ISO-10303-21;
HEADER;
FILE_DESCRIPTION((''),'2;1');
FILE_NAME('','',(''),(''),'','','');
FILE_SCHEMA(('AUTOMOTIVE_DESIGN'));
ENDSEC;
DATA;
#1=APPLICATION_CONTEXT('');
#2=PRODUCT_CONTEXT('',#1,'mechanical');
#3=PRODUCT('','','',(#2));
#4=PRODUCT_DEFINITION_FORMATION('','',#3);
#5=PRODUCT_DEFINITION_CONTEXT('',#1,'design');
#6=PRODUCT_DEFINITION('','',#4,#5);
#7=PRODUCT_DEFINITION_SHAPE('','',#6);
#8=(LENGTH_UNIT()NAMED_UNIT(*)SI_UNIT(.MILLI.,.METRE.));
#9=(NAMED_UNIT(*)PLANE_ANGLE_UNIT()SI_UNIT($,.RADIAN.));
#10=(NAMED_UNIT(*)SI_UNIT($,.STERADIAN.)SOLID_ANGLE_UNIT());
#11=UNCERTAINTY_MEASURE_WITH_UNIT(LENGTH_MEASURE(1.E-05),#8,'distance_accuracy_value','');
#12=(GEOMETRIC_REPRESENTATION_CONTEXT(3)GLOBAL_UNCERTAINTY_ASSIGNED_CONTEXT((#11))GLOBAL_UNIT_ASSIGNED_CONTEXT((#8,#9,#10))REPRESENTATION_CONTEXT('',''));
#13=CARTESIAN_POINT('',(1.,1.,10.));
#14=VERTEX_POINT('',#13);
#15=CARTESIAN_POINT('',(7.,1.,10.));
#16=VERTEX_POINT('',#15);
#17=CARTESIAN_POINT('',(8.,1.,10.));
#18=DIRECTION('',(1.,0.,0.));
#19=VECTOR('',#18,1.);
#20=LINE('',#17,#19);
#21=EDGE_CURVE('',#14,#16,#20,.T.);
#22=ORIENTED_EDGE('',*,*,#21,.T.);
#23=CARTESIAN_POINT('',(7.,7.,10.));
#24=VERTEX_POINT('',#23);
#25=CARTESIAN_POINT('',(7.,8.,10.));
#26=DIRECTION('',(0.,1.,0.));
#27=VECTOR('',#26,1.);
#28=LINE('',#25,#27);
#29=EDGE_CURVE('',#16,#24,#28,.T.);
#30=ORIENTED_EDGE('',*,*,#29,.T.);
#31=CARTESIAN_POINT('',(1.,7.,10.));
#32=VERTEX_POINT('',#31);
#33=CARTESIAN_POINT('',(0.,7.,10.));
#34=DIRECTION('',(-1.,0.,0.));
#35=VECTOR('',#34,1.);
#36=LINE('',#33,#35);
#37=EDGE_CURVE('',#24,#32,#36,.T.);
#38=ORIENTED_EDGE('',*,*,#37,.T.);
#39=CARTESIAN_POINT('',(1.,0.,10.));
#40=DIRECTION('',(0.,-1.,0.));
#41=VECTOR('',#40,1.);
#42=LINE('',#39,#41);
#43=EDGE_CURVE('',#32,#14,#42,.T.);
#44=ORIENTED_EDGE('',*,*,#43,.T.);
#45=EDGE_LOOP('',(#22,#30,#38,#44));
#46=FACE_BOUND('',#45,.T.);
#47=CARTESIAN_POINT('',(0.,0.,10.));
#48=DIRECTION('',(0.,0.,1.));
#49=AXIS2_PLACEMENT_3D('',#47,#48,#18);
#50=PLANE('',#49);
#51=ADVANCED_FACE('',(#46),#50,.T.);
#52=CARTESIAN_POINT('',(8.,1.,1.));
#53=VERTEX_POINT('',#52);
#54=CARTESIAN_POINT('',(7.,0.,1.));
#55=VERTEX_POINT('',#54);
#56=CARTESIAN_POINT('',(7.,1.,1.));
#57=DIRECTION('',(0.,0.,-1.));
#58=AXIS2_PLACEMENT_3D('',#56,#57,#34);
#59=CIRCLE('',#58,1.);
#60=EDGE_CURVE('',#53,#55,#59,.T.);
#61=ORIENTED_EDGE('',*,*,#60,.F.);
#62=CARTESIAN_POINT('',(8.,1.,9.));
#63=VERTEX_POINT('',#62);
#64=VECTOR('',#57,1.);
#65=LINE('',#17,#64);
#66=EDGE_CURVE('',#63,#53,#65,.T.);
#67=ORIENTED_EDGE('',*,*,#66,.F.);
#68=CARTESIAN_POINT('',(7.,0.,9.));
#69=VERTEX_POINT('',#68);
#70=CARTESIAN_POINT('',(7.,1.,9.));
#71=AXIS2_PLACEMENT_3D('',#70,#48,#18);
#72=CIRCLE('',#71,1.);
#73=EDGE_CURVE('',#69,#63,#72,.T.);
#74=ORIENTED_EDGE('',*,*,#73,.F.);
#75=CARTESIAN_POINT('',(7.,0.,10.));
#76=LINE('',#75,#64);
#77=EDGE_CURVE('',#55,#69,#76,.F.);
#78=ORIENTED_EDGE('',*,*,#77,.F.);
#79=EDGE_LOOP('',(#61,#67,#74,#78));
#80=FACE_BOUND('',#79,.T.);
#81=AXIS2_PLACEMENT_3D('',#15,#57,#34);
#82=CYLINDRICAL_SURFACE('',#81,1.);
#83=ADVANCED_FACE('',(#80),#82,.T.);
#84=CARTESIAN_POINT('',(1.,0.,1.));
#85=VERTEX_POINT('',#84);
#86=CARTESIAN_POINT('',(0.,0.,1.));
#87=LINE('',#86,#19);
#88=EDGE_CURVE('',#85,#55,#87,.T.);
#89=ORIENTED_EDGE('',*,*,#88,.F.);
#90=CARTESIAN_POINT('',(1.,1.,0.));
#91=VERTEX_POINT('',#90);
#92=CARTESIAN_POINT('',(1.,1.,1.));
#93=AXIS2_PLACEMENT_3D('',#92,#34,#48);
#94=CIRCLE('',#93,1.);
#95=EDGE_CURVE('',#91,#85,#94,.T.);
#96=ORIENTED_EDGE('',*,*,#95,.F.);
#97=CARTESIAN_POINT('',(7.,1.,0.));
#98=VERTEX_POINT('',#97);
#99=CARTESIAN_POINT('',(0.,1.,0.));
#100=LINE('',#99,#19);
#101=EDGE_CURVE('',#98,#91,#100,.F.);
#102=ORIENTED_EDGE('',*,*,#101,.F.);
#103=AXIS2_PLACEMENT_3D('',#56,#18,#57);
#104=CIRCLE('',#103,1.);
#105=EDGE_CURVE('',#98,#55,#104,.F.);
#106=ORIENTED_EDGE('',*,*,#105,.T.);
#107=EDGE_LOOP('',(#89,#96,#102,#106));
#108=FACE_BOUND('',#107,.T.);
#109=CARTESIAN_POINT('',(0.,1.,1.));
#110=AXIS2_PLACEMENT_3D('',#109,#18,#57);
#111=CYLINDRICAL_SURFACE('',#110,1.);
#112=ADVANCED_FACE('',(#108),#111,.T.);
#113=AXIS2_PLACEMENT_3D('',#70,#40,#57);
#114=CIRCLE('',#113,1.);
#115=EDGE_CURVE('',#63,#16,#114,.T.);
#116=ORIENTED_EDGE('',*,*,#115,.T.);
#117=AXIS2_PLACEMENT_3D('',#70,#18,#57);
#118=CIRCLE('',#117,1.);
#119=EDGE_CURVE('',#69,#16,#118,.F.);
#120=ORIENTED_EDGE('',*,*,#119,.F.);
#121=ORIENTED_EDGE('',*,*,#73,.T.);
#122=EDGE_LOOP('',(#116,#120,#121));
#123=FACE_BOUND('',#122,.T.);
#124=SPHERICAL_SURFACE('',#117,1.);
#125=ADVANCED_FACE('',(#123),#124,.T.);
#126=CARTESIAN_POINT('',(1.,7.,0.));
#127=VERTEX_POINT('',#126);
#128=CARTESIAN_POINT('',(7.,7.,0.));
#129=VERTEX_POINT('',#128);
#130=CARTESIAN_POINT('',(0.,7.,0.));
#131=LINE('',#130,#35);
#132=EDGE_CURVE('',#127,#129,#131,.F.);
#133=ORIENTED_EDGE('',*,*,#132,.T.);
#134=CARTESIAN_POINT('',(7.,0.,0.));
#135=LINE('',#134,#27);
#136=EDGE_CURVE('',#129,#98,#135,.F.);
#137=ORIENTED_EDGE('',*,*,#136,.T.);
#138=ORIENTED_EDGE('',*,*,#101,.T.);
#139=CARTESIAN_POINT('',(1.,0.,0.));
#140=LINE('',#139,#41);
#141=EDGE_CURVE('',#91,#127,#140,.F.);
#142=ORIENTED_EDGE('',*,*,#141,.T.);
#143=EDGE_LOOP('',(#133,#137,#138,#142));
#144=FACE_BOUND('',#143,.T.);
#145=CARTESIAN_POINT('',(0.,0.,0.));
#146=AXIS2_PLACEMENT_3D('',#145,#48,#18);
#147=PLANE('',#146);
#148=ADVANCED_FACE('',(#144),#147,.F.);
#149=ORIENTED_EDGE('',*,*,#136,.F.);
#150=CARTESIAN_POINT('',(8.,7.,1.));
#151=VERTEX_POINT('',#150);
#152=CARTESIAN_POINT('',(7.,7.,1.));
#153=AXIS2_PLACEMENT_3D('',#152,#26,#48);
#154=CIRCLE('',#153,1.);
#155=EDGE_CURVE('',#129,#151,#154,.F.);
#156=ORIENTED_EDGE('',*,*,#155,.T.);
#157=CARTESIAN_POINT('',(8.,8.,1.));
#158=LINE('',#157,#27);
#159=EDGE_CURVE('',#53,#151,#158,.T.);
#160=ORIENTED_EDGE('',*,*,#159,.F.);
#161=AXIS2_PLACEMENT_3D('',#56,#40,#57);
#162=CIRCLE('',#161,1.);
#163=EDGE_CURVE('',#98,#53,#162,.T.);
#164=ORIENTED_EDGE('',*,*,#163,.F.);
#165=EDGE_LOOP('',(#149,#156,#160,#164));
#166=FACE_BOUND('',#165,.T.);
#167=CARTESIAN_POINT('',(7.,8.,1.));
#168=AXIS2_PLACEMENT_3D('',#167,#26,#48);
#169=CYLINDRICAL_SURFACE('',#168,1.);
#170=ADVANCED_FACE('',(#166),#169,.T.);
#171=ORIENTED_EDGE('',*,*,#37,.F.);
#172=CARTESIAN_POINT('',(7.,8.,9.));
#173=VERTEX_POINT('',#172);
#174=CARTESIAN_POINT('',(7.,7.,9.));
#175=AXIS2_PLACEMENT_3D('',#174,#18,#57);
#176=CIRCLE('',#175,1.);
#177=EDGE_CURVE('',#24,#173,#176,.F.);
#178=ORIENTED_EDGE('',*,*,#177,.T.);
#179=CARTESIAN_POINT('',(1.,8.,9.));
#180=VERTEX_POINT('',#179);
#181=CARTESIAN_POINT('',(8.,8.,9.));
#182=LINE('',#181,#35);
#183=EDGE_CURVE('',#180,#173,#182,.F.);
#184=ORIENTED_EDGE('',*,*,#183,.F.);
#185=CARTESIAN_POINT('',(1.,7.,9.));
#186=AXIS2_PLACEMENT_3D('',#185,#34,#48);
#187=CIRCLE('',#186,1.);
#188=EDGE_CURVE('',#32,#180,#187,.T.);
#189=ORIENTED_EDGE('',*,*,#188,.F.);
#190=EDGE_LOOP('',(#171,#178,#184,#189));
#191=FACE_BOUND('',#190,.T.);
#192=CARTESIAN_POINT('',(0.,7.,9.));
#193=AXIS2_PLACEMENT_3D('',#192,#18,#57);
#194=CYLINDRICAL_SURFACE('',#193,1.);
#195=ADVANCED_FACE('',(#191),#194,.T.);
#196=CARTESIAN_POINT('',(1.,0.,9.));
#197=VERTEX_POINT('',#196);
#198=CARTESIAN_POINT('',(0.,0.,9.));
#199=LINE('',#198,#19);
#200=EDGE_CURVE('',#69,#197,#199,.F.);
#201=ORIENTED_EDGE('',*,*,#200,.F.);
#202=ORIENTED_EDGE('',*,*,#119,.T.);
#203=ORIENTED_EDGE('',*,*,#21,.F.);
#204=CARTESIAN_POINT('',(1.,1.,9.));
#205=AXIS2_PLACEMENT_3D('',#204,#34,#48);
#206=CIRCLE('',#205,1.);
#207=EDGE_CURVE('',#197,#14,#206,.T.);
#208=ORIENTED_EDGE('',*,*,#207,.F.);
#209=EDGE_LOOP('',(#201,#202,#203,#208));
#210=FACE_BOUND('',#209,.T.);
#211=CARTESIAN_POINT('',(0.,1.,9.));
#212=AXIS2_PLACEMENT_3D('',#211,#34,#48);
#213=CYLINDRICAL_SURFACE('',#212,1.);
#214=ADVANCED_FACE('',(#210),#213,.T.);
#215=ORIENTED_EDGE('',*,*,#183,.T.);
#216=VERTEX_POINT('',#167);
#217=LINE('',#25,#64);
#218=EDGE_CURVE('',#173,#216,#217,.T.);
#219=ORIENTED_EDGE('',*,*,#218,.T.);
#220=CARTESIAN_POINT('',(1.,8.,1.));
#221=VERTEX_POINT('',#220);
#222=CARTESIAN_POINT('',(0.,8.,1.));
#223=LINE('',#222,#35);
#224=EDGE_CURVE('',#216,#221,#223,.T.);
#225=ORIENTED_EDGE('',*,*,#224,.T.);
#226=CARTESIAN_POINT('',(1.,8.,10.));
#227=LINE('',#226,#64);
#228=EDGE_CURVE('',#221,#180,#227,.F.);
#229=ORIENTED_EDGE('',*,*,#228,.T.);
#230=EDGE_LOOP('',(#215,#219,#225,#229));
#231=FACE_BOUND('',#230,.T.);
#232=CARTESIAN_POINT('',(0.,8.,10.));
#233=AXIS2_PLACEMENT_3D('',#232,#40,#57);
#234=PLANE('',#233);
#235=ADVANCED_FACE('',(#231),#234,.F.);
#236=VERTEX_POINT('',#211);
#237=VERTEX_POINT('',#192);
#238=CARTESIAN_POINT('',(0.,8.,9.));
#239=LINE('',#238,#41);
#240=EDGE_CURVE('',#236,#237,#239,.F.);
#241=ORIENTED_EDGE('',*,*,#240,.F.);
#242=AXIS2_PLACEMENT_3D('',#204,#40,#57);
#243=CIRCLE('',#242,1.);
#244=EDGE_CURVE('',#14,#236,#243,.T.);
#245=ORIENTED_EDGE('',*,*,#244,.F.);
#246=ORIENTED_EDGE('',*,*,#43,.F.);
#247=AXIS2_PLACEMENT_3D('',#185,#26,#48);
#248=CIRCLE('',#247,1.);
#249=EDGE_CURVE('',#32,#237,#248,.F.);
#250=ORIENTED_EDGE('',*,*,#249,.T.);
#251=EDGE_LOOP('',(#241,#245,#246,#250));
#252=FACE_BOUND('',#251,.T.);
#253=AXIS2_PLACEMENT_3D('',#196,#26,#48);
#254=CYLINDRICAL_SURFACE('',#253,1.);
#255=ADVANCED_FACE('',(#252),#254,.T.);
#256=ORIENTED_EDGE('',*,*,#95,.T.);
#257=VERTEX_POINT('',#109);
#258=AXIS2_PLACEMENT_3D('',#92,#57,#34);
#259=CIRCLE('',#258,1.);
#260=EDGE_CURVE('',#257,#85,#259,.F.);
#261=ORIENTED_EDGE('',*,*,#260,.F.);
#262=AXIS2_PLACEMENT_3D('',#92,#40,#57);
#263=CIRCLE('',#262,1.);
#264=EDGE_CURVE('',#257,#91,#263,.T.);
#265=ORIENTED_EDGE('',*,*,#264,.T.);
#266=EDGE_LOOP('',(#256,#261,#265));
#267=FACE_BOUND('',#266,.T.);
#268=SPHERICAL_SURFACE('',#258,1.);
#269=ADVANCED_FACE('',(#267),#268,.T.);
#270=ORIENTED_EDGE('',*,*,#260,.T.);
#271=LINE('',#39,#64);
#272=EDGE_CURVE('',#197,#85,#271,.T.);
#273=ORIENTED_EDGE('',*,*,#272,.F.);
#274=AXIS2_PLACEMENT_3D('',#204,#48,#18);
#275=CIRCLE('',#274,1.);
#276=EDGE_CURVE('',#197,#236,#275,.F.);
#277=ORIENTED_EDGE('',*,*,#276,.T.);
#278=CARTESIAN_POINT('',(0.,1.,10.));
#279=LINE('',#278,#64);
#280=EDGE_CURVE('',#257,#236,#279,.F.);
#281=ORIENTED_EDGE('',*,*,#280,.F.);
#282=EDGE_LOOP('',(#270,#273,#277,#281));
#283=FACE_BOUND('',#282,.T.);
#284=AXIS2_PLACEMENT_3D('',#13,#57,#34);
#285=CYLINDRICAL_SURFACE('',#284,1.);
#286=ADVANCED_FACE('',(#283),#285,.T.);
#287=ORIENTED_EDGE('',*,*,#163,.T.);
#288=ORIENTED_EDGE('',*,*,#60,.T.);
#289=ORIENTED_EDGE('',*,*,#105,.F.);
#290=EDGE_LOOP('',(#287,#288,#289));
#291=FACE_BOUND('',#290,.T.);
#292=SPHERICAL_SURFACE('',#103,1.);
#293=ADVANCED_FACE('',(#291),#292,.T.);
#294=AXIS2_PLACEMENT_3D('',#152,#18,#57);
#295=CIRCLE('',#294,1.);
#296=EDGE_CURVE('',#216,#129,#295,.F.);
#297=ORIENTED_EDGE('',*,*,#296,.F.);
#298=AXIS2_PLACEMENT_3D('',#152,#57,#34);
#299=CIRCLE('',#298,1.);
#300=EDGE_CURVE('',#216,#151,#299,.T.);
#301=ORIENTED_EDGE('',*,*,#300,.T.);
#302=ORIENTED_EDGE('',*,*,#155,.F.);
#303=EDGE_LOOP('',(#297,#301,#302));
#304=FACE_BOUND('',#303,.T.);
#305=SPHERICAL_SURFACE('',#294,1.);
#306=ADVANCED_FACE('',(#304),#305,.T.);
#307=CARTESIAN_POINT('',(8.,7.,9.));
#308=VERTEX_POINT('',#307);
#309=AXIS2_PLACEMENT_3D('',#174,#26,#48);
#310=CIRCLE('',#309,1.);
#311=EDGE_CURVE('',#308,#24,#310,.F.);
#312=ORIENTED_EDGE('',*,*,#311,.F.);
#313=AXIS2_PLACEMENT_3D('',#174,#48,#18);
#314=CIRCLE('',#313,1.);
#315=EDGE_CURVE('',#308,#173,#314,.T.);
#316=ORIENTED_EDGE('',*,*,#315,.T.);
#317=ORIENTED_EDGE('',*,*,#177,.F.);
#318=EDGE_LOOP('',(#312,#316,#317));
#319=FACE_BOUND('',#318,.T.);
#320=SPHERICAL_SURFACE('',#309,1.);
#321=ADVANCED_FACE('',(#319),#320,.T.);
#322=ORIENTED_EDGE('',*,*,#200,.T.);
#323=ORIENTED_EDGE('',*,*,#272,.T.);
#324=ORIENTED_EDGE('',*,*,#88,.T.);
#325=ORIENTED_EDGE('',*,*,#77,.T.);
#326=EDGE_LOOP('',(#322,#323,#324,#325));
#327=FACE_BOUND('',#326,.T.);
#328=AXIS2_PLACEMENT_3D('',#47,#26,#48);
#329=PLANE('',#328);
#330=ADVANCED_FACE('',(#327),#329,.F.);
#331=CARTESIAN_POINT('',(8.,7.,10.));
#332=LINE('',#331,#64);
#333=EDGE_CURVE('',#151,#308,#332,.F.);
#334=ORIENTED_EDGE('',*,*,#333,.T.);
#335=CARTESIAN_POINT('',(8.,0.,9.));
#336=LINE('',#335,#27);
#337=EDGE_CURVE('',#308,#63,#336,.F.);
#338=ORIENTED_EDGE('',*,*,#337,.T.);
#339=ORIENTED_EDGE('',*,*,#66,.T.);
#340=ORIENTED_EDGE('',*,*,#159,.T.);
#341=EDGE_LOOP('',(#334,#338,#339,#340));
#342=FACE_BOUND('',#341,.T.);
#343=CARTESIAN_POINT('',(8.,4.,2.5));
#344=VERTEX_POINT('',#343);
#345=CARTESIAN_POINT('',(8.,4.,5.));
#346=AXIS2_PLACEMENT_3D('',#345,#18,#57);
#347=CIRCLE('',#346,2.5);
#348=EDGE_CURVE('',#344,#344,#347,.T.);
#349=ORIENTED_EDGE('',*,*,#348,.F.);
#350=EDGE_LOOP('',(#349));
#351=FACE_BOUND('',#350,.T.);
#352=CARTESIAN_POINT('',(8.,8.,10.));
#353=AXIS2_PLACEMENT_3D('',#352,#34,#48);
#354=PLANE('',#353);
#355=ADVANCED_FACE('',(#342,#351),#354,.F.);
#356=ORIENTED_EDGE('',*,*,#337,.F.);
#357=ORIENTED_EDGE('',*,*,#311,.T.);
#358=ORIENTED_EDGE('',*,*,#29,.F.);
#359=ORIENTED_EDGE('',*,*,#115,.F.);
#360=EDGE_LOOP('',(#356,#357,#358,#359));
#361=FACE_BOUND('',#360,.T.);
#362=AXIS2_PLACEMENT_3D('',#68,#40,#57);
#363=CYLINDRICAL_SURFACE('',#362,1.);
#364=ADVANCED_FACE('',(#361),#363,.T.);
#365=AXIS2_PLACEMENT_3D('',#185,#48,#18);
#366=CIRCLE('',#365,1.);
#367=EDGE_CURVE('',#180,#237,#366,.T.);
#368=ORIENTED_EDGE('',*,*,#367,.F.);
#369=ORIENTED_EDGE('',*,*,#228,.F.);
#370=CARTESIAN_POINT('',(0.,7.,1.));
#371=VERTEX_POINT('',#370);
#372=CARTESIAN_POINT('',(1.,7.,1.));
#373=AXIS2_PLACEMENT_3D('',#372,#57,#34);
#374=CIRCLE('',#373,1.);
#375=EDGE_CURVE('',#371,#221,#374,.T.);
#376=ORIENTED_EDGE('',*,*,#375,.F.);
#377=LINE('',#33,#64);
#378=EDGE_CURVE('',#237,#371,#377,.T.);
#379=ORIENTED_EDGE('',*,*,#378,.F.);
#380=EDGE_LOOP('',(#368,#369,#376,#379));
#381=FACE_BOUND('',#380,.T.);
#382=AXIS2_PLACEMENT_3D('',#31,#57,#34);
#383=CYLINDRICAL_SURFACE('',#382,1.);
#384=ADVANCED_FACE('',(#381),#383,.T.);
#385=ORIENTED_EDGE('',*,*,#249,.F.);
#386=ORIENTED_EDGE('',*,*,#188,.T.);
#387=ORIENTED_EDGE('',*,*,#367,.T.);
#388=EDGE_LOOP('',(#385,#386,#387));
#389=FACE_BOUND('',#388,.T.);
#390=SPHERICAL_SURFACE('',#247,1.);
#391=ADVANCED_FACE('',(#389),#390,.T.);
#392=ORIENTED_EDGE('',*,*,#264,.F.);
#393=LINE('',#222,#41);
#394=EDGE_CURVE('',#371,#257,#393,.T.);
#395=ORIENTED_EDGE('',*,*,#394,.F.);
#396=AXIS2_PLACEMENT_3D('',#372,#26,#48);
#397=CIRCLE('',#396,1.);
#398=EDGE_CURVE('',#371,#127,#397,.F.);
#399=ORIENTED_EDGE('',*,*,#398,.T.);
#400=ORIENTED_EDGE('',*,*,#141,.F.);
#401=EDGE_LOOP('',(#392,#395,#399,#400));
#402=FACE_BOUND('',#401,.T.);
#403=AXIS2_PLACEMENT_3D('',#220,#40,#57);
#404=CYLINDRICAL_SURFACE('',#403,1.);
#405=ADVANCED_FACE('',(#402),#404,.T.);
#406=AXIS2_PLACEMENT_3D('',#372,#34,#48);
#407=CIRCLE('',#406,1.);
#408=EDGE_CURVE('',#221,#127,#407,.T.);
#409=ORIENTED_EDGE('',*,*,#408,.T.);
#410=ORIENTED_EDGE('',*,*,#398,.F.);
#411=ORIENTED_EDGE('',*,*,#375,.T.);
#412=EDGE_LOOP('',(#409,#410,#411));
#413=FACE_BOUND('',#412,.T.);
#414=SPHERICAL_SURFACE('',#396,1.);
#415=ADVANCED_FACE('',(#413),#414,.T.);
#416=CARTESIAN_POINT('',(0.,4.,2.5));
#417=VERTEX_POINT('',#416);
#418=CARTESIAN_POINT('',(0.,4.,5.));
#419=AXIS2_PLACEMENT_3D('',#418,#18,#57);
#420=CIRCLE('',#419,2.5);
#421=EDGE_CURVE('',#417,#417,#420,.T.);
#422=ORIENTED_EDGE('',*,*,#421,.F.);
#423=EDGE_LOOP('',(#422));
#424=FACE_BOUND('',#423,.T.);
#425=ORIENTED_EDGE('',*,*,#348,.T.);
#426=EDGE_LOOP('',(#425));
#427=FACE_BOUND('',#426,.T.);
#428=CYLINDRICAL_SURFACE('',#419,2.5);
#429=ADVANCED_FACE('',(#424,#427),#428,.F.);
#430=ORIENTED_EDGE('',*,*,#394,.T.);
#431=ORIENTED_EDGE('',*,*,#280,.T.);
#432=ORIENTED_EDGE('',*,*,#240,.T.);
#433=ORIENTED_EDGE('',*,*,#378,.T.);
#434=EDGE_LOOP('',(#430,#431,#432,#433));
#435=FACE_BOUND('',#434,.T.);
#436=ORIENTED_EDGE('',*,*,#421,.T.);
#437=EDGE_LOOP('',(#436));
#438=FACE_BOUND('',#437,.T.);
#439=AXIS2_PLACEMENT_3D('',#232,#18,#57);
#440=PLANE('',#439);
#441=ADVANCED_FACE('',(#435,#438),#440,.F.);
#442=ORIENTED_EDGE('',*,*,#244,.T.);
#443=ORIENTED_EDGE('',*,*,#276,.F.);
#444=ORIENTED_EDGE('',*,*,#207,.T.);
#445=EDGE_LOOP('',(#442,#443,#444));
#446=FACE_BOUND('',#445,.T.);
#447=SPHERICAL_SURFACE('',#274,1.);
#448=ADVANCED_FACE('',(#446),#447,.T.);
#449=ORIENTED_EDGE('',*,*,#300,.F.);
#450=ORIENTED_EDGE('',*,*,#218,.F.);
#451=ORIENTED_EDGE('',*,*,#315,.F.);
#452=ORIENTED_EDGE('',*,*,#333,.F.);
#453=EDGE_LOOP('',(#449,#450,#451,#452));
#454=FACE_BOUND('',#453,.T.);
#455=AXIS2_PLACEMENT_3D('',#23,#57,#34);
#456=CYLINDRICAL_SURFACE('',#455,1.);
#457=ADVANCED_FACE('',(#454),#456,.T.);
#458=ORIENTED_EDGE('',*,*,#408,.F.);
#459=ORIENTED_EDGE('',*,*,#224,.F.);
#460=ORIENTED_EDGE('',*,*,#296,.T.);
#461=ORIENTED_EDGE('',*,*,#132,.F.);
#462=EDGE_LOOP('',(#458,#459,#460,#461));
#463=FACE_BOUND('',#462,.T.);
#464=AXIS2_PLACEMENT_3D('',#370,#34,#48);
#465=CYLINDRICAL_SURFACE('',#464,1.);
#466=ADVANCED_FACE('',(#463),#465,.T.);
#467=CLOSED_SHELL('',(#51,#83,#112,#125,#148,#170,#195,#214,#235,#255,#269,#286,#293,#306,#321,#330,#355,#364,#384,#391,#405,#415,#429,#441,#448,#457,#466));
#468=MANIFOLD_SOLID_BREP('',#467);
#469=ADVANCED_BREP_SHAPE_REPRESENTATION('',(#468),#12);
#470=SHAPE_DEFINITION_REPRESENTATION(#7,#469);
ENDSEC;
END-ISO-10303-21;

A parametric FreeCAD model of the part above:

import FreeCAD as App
import Part
import Sketcher
Q = App.Units.Quantity


def edges_at(feature, points):
    """Names of the edges that pass closest to the given points."""
    edges = feature.Shape.Edges
    near = lambda p: min(range(len(edges)), key=lambda i: edges[i].distToShape(Part.Vertex(*p))[0])
    return sorted({f"Edge{near(p) + 1}" for p in points})


def add_polygon(sketch, points):
    """Adds a closed chain of lines whose ends are joined by coincident constraints."""
    first, n = sketch.GeometryCount, len(points)
    for a, b in zip(points, points[1:] + points[:1]):
        sketch.addGeometry(Part.LineSegment(App.Vector(*a, 0), App.Vector(*b, 0)), False)
    for i in range(n):
        sketch.addConstraint(Sketcher.Constraint("Coincident", first + i, 2, first + (i + 1) % n, 1))

doc = App.newDocument("Part")
body = doc.addObject("PartDesign::Body", "Body")

sketch1 = doc.addObject("Sketcher::SketchObject", "Sketch")
body.addObject(sketch1)
sketch1.AttachmentSupport = (doc.XY_Plane, [""])
sketch1.MapMode = "FlatFace"
add_polygon(sketch1, [(0, 8), (0, 0), (8, 0), (8, 8)])
sketch1.addConstraint([
    Sketcher.Constraint("Vertical", 0),
    Sketcher.Constraint("Horizontal", 1),
    Sketcher.Constraint("Vertical", 2),
    Sketcher.Constraint("Horizontal", 3),
    Sketcher.Constraint("Coincident", 0, 2, -1, 1),
    Sketcher.Constraint("Equal", 3, 0),
    Sketcher.Constraint("DistanceX", 1, 1, 1, 2, Q("8 mm")),
])
pad1 = doc.addObject("PartDesign::Pad", "Pad")
body.addObject(pad1)
pad1.Profile = sketch1
pad1.Length = 10

sketch2 = doc.addObject("Sketcher::SketchObject", "Sketch001")
body.addObject(sketch2)
sketch2.AttachmentSupport = (doc.YZ_Plane, [""])
sketch2.MapMode = "FlatFace"
sketch2.AttachmentOffset = App.Placement(App.Vector(0, 0, 8), App.Rotation())
sketch2.addGeometry(Part.Circle(App.Vector(4, 5, 0), App.Vector(0, 0, 1), 2.5), False)
sketch2.addConstraint([
    Sketcher.Constraint("Diameter", 0, Q("5 mm")),
    Sketcher.Constraint("DistanceX", -1, 1, 0, 3, Q("4 mm")),
    Sketcher.Constraint("DistanceY", -1, 1, 0, 3, Q("5 mm")),
])
pocket1 = doc.addObject("PartDesign::Pocket", "Pocket")
body.addObject(pocket1)
pocket1.Profile = sketch2
pocket1.Type = "ThroughAll"
doc.recompute()

fillet = doc.addObject("PartDesign::Fillet", "Fillet")
body.addObject(fillet)
fillet.Base = (pocket1, edges_at(pocket1, [
    (8, 4, 10),
    (4, 8, 10),
    (0, 4, 10),
    (4, 8, 0),
    (8, 4, 0),
    (4, 0, 0),
    (0, 4, 0),
    (0, 8, 5),
    (8, 8, 5),
    (8, 0, 5),
    (0, 0, 5),
    (4, 0, 10),
]))
fillet.Radius = 1

doc.recompute()
